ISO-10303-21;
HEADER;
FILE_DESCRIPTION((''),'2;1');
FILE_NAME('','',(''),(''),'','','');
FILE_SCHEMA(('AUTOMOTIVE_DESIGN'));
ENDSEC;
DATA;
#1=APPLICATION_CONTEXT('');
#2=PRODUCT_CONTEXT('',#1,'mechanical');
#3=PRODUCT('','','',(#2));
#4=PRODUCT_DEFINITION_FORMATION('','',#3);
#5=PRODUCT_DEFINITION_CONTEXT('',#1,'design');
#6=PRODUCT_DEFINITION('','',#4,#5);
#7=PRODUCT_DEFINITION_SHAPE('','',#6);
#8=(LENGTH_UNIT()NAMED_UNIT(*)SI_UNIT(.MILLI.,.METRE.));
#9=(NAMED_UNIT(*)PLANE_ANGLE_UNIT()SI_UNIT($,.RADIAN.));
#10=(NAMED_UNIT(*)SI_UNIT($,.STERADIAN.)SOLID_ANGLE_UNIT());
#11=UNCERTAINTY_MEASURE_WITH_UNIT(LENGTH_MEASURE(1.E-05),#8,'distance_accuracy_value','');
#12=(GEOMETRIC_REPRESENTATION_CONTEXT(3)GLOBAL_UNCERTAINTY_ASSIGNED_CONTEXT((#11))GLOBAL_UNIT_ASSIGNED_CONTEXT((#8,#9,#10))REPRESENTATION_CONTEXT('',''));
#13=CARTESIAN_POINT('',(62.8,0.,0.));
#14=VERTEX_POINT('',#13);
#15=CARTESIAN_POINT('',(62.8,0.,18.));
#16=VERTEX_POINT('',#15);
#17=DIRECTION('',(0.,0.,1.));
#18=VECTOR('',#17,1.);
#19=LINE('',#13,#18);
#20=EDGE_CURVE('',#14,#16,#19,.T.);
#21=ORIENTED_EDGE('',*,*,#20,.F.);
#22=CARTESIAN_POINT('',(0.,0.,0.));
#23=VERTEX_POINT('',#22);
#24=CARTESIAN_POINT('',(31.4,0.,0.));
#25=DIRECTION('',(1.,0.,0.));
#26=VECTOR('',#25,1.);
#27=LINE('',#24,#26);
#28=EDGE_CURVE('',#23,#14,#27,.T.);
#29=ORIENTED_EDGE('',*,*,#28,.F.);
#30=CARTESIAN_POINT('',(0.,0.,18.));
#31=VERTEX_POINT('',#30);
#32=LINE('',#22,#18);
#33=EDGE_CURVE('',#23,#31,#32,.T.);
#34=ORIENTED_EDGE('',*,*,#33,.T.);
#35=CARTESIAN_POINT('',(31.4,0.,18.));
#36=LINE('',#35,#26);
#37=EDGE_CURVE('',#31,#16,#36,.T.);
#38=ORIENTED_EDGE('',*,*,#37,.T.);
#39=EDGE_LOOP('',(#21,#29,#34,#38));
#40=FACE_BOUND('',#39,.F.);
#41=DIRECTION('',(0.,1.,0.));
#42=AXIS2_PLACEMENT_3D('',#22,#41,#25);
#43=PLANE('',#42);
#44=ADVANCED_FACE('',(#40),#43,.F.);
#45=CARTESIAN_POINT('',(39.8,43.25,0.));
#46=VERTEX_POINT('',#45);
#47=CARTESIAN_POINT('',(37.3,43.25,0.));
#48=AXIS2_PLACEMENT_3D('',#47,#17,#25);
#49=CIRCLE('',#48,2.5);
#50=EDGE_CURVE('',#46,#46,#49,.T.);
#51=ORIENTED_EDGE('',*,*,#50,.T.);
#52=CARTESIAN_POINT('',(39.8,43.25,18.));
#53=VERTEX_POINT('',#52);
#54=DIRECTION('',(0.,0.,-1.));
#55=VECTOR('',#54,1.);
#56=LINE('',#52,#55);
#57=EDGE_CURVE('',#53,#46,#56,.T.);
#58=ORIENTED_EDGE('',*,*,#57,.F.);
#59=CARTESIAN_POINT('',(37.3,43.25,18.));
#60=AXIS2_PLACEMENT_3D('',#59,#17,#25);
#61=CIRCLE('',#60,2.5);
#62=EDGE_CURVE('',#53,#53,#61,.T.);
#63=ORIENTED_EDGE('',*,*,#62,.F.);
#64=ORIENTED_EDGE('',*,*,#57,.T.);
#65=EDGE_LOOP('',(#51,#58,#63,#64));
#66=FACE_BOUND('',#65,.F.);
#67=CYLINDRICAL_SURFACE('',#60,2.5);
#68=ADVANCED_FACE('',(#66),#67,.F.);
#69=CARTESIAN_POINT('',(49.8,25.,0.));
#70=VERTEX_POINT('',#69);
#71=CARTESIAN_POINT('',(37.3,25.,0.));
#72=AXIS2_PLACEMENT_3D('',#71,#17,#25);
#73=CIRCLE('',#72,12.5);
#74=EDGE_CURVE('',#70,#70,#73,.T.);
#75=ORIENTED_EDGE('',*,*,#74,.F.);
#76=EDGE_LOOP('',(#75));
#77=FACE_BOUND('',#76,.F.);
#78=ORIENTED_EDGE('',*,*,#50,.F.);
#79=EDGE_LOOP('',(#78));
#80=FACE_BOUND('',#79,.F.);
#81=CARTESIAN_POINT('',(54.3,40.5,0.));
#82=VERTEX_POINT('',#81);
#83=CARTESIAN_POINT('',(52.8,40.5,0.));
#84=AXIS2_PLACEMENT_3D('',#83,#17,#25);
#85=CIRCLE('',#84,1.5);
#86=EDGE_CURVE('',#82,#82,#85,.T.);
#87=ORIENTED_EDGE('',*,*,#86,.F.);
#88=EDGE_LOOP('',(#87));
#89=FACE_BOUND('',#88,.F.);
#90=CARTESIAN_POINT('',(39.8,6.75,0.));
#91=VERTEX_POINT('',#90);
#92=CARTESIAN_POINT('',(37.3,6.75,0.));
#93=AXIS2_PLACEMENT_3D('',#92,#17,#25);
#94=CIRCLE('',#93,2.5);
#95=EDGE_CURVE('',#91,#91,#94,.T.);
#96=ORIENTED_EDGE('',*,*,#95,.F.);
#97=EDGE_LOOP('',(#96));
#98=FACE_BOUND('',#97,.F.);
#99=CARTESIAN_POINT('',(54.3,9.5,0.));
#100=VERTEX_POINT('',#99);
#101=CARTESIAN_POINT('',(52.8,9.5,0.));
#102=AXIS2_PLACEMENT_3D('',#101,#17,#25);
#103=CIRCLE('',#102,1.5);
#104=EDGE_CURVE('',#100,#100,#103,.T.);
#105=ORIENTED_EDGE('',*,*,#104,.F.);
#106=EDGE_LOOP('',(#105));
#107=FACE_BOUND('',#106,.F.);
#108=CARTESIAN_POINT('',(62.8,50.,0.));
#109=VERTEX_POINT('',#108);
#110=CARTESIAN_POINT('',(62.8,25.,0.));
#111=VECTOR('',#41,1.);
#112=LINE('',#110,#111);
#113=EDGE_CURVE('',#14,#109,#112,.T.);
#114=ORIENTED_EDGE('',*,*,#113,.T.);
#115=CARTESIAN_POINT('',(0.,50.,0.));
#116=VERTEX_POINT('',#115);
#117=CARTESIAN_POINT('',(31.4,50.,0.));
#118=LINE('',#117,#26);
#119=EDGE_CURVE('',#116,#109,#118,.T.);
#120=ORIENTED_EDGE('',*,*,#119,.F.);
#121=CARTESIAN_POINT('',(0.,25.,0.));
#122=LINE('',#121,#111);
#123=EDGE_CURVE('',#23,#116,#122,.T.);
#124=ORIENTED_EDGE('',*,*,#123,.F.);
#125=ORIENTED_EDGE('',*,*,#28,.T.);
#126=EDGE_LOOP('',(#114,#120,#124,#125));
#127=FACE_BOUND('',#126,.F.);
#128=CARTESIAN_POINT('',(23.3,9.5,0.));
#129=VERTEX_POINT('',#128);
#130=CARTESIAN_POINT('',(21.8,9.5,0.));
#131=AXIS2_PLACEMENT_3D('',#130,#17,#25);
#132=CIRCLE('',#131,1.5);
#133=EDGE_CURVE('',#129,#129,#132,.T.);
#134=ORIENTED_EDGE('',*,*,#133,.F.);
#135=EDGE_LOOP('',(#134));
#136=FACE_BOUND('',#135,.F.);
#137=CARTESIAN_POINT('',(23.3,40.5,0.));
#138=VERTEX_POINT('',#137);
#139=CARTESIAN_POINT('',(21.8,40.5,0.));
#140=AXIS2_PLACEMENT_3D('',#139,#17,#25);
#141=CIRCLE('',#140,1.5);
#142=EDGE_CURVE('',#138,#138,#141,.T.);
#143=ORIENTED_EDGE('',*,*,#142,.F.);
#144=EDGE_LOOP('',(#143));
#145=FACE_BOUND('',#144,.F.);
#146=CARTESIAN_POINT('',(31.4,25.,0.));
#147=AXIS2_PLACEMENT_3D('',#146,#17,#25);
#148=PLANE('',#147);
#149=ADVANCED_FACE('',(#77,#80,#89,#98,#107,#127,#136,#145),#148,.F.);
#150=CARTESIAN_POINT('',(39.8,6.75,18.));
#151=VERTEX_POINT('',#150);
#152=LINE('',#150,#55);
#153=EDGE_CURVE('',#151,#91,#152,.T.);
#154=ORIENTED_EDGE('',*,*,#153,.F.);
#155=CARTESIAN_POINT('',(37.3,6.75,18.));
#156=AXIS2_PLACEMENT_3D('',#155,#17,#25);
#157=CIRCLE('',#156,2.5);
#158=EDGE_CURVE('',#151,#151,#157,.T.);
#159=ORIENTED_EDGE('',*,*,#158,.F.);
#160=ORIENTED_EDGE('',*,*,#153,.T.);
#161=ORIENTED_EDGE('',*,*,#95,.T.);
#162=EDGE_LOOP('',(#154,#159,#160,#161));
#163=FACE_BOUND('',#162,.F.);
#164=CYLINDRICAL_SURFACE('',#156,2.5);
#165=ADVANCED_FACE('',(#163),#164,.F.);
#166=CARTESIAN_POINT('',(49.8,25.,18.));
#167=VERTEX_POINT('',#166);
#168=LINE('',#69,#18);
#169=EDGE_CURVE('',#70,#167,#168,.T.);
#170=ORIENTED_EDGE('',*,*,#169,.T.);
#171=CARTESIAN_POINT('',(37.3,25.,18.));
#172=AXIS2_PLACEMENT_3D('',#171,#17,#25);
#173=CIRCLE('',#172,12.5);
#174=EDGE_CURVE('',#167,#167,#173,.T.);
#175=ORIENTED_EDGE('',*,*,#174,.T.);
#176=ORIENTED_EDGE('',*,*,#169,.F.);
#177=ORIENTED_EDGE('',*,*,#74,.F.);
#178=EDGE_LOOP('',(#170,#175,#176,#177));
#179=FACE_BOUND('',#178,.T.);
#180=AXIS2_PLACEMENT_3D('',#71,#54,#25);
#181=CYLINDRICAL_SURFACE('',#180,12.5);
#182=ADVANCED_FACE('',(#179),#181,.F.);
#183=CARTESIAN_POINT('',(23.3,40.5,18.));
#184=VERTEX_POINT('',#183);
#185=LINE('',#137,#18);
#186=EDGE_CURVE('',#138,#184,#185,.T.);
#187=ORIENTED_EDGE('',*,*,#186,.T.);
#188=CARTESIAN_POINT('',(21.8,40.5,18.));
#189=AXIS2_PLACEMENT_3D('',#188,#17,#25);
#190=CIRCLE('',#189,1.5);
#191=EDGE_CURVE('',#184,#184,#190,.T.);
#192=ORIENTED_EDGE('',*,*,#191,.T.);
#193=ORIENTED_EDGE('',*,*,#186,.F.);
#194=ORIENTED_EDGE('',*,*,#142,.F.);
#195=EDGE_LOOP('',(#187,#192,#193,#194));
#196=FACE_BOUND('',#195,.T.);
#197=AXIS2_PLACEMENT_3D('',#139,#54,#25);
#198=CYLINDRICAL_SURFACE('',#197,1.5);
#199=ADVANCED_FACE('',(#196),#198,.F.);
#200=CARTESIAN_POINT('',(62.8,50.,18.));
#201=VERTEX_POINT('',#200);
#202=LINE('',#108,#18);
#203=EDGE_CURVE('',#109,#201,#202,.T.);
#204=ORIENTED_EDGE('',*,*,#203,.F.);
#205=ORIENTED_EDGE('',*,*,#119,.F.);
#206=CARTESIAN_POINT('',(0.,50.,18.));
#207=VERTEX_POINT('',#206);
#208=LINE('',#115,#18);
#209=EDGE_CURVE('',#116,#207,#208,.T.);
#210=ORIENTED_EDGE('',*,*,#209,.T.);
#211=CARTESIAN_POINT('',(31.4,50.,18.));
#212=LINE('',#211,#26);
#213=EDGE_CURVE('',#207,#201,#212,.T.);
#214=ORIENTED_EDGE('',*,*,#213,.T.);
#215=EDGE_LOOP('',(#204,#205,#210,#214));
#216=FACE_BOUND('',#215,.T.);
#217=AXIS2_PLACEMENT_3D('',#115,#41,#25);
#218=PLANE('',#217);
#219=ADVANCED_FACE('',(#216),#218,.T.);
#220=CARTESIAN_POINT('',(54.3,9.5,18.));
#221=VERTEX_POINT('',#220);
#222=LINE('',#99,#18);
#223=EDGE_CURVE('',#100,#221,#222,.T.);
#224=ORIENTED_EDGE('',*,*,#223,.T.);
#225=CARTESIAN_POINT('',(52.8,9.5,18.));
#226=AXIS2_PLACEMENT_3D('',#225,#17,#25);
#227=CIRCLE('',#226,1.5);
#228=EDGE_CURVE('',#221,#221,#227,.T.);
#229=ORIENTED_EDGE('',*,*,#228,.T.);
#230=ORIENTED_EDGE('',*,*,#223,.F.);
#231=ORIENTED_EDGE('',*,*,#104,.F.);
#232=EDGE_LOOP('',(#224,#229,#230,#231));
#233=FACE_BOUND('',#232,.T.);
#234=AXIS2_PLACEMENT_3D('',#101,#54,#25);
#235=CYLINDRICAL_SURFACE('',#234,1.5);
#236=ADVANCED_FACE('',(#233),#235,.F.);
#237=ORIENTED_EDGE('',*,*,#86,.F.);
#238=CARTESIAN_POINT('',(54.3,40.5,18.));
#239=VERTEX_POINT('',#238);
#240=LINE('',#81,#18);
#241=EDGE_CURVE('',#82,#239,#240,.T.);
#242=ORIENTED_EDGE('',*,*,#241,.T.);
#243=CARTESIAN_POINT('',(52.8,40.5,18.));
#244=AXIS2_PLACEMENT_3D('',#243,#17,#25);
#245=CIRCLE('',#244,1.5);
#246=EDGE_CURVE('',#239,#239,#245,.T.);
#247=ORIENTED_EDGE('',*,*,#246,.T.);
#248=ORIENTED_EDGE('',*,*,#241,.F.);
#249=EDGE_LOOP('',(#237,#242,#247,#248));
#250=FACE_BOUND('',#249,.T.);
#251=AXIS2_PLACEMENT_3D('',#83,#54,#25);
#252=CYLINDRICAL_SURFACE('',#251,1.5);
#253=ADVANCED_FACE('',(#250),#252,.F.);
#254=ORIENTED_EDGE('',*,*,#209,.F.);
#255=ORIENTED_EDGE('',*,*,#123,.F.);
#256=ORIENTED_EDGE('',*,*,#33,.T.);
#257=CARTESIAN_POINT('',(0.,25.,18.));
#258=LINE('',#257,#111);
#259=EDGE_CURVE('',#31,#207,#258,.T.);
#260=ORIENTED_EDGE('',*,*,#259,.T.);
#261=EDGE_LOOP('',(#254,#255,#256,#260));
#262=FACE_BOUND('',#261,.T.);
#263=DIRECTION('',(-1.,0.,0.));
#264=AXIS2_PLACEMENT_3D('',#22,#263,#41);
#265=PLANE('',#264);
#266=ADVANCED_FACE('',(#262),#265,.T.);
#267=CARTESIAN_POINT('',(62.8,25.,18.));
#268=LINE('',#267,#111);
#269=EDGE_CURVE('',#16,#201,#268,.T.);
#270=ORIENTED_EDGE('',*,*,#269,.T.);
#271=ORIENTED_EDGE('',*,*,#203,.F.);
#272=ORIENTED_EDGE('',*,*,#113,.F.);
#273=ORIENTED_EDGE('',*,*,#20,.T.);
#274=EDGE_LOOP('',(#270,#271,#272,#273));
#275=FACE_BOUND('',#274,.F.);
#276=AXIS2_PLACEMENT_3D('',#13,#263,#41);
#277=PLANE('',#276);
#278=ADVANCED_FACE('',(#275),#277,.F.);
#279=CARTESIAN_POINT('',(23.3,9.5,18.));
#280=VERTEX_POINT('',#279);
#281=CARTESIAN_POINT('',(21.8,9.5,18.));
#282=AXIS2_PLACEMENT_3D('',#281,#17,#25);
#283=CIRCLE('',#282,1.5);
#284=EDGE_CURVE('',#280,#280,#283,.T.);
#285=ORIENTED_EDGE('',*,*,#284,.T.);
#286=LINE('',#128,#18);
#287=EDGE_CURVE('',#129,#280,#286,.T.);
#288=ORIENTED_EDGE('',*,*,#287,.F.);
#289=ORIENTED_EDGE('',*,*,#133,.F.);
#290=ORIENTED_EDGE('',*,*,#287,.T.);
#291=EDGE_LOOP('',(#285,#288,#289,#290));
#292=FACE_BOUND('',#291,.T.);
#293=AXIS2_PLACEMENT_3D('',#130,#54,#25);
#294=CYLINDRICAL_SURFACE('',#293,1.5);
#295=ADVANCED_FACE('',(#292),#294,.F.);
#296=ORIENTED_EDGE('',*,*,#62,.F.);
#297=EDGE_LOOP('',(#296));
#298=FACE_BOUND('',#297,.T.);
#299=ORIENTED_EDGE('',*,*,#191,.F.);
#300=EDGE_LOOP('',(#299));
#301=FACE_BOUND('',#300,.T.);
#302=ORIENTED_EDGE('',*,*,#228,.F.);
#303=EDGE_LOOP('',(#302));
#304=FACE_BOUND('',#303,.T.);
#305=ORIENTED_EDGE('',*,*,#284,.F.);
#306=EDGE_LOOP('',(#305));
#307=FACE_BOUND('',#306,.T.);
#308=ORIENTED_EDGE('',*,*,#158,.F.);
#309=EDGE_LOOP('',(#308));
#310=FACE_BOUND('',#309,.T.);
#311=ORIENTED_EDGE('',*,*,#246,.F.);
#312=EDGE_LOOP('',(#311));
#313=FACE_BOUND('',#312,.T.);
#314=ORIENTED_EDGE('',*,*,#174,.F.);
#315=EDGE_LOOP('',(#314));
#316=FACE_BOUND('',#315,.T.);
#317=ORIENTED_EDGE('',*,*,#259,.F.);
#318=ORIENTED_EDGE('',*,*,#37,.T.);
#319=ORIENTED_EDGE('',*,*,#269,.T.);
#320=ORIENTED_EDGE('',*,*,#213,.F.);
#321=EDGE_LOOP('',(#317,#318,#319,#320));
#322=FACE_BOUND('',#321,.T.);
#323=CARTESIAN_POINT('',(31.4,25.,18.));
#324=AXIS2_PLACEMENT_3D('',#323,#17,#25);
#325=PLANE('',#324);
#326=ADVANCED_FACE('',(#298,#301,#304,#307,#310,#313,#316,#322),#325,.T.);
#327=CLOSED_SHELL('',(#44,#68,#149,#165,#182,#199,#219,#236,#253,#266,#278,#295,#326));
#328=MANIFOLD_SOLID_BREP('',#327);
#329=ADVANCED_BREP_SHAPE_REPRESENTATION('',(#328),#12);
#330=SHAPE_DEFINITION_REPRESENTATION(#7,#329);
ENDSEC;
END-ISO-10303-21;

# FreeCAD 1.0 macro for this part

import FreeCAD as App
import Part
import Sketcher
Q = App.Units.Quantity


def add_polygon(sketch, points):
    """Adds a closed chain of lines whose ends are joined by coincident constraints."""
    first, n = sketch.GeometryCount, len(points)
    for a, b in zip(points, points[1:] + points[:1]):
        sketch.addGeometry(Part.LineSegment(App.Vector(*a, 0), App.Vector(*b, 0)), False)
    for i in range(n):
        sketch.addConstraint(Sketcher.Constraint("Coincident", first + i, 2, first + (i + 1) % n, 1))

doc = App.newDocument("Part")
params = doc.addObject("Spreadsheet::Sheet", "Params")
for row, (alias, value) in enumerate([
    ("sketch1_diameter", "3 mm"),
    ("sketch1_diameter2", "25 mm"),
    ("sketch1_height", "50 mm"),
    ("sketch1_width", "62.8 mm"),
    ("pad1_length", "18 mm"),
    ("sketch2_diameter", "5 mm"),
    ("pocket1_length", "25 mm"),
], start=1):
    params.set(f"A{row}", alias)
    params.set(f"B{row}", "=" + value)
    params.setAlias(f"B{row}", alias)

body = doc.addObject("PartDesign::Body", "Body")

# Sketch on XY plane
sketch1 = body.newObject("Sketcher::SketchObject", "Sketch")
sketch1.AttachmentSupport = (doc.getObject("XY_Plane"), [""])
sketch1.MapMode = "FlatFace"
add_polygon(sketch1, [(0, 50), (0, 0), (62.8, 0), (62.8, 50)])  # lines 0-3
sketch1.addGeometry(Part.Circle(App.Vector(21.8, 9.5, 0), App.Vector(0, 0, 1), 1.5), False)  # 4
sketch1.addGeometry(Part.Circle(App.Vector(52.8, 9.5, 0), App.Vector(0, 0, 1), 1.5), False)  # 5
sketch1.addGeometry(Part.Circle(App.Vector(37.3, 25, 0), App.Vector(0, 0, 1), 12.5), False)  # 6
sketch1.addGeometry(Part.Circle(App.Vector(21.8, 40.5, 0), App.Vector(0, 0, 1), 1.5), False)  # 7
sketch1.addGeometry(Part.Circle(App.Vector(52.8, 40.5, 0), App.Vector(0, 0, 1), 1.5), False)  # 8
sketch1.addConstraint([
    Sketcher.Constraint("Vertical", 0),
    Sketcher.Constraint("Horizontal", 1),
    Sketcher.Constraint("Vertical", 2),
    Sketcher.Constraint("Horizontal", 3),
    Sketcher.Constraint("Coincident", 0, 2, -1, 1),
    Sketcher.Constraint("Equal", 4, 5),
    Sketcher.Constraint("Equal", 5, 7),
    Sketcher.Constraint("Equal", 7, 8),
    Sketcher.Constraint("Horizontal", 4, 3, 5, 3),
    Sketcher.Constraint("Horizontal", 7, 3, 8, 3),
    Sketcher.Constraint("Vertical", 4, 3, 7, 3),
    Sketcher.Constraint("Vertical", 5, 3, 8, 3),
    Sketcher.Constraint("Diameter", 4, Q("3 mm")),
    Sketcher.Constraint("Diameter", 6, Q("25 mm")),
    Sketcher.Constraint("DistanceY", 0, 2, 0, 1, Q("50 mm")),
    Sketcher.Constraint("DistanceX", 1, 1, 1, 2, Q("62.8 mm")),
    Sketcher.Constraint("DistanceY", -1, 1, 6, 3, Q("25 mm")),
    Sketcher.Constraint("DistanceX", 4, 3, 5, 3, Q("31 mm")),
    Sketcher.Constraint("DistanceY", 4, 3, 7, 3, Q("31 mm")),
    Sketcher.Constraint("DistanceX", 5, 3, 1, 2, Q("10 mm")),
    Sketcher.Constraint("DistanceY", -1, 1, 4, 3, Q("9.5 mm")),
    Sketcher.Constraint("DistanceX", -1, 1, 6, 3, Q("37.3 mm")),
])
sketch1.setExpression("Constraints[16]", "Params.sketch1_diameter")
sketch1.setExpression("Constraints[17]", "Params.sketch1_diameter2")
sketch1.setExpression("Constraints[18]", "Params.sketch1_height")
sketch1.setExpression("Constraints[19]", "Params.sketch1_width")
pad1 = body.newObject("PartDesign::Pad", "Pad")
pad1.Profile = sketch1
pad1.setExpression("Length", "Params.pad1_length")

# Sketch on XY plane
sketch2 = body.newObject("Sketcher::SketchObject", "Sketch001")
sketch2.AttachmentSupport = (doc.getObject("XY_Plane"), [""])
sketch2.MapMode = "FlatFace"
sketch2.AttachmentOffset = App.Placement(App.Vector(0, 0, 18), App.Rotation())
sketch2.addGeometry([
    Part.Circle(App.Vector(37.3, 43.2, 0), App.Vector(0, 0, 1), 2.5),
    Part.Circle(App.Vector(37.3, 6.8, 0), App.Vector(0, 0, 1), 2.5),
], False)
sketch2.addConstraint([
    Sketcher.Constraint("Equal", 0, 1),
    Sketcher.Constraint("Vertical", 0, 3, 1, 3),
    Sketcher.Constraint("Diameter", 0, Q("5 mm")),
    Sketcher.Constraint("DistanceX", -1, 1, 0, 3, Q("37.3 mm")),
    Sketcher.Constraint("DistanceY", 1, 3, 0, 3, Q("36.5 mm")),
    Sketcher.Constraint("DistanceY", -1, 1, 0, 3, Q("43.25 mm")),
])
sketch2.setExpression("Constraints[2]", "Params.sketch2_diameter")
pocket1 = body.newObject("PartDesign::Pocket", "Pocket")
pocket1.Profile = sketch2
pocket1.setExpression("Length", "Params.pocket1_length")

doc.recompute()
